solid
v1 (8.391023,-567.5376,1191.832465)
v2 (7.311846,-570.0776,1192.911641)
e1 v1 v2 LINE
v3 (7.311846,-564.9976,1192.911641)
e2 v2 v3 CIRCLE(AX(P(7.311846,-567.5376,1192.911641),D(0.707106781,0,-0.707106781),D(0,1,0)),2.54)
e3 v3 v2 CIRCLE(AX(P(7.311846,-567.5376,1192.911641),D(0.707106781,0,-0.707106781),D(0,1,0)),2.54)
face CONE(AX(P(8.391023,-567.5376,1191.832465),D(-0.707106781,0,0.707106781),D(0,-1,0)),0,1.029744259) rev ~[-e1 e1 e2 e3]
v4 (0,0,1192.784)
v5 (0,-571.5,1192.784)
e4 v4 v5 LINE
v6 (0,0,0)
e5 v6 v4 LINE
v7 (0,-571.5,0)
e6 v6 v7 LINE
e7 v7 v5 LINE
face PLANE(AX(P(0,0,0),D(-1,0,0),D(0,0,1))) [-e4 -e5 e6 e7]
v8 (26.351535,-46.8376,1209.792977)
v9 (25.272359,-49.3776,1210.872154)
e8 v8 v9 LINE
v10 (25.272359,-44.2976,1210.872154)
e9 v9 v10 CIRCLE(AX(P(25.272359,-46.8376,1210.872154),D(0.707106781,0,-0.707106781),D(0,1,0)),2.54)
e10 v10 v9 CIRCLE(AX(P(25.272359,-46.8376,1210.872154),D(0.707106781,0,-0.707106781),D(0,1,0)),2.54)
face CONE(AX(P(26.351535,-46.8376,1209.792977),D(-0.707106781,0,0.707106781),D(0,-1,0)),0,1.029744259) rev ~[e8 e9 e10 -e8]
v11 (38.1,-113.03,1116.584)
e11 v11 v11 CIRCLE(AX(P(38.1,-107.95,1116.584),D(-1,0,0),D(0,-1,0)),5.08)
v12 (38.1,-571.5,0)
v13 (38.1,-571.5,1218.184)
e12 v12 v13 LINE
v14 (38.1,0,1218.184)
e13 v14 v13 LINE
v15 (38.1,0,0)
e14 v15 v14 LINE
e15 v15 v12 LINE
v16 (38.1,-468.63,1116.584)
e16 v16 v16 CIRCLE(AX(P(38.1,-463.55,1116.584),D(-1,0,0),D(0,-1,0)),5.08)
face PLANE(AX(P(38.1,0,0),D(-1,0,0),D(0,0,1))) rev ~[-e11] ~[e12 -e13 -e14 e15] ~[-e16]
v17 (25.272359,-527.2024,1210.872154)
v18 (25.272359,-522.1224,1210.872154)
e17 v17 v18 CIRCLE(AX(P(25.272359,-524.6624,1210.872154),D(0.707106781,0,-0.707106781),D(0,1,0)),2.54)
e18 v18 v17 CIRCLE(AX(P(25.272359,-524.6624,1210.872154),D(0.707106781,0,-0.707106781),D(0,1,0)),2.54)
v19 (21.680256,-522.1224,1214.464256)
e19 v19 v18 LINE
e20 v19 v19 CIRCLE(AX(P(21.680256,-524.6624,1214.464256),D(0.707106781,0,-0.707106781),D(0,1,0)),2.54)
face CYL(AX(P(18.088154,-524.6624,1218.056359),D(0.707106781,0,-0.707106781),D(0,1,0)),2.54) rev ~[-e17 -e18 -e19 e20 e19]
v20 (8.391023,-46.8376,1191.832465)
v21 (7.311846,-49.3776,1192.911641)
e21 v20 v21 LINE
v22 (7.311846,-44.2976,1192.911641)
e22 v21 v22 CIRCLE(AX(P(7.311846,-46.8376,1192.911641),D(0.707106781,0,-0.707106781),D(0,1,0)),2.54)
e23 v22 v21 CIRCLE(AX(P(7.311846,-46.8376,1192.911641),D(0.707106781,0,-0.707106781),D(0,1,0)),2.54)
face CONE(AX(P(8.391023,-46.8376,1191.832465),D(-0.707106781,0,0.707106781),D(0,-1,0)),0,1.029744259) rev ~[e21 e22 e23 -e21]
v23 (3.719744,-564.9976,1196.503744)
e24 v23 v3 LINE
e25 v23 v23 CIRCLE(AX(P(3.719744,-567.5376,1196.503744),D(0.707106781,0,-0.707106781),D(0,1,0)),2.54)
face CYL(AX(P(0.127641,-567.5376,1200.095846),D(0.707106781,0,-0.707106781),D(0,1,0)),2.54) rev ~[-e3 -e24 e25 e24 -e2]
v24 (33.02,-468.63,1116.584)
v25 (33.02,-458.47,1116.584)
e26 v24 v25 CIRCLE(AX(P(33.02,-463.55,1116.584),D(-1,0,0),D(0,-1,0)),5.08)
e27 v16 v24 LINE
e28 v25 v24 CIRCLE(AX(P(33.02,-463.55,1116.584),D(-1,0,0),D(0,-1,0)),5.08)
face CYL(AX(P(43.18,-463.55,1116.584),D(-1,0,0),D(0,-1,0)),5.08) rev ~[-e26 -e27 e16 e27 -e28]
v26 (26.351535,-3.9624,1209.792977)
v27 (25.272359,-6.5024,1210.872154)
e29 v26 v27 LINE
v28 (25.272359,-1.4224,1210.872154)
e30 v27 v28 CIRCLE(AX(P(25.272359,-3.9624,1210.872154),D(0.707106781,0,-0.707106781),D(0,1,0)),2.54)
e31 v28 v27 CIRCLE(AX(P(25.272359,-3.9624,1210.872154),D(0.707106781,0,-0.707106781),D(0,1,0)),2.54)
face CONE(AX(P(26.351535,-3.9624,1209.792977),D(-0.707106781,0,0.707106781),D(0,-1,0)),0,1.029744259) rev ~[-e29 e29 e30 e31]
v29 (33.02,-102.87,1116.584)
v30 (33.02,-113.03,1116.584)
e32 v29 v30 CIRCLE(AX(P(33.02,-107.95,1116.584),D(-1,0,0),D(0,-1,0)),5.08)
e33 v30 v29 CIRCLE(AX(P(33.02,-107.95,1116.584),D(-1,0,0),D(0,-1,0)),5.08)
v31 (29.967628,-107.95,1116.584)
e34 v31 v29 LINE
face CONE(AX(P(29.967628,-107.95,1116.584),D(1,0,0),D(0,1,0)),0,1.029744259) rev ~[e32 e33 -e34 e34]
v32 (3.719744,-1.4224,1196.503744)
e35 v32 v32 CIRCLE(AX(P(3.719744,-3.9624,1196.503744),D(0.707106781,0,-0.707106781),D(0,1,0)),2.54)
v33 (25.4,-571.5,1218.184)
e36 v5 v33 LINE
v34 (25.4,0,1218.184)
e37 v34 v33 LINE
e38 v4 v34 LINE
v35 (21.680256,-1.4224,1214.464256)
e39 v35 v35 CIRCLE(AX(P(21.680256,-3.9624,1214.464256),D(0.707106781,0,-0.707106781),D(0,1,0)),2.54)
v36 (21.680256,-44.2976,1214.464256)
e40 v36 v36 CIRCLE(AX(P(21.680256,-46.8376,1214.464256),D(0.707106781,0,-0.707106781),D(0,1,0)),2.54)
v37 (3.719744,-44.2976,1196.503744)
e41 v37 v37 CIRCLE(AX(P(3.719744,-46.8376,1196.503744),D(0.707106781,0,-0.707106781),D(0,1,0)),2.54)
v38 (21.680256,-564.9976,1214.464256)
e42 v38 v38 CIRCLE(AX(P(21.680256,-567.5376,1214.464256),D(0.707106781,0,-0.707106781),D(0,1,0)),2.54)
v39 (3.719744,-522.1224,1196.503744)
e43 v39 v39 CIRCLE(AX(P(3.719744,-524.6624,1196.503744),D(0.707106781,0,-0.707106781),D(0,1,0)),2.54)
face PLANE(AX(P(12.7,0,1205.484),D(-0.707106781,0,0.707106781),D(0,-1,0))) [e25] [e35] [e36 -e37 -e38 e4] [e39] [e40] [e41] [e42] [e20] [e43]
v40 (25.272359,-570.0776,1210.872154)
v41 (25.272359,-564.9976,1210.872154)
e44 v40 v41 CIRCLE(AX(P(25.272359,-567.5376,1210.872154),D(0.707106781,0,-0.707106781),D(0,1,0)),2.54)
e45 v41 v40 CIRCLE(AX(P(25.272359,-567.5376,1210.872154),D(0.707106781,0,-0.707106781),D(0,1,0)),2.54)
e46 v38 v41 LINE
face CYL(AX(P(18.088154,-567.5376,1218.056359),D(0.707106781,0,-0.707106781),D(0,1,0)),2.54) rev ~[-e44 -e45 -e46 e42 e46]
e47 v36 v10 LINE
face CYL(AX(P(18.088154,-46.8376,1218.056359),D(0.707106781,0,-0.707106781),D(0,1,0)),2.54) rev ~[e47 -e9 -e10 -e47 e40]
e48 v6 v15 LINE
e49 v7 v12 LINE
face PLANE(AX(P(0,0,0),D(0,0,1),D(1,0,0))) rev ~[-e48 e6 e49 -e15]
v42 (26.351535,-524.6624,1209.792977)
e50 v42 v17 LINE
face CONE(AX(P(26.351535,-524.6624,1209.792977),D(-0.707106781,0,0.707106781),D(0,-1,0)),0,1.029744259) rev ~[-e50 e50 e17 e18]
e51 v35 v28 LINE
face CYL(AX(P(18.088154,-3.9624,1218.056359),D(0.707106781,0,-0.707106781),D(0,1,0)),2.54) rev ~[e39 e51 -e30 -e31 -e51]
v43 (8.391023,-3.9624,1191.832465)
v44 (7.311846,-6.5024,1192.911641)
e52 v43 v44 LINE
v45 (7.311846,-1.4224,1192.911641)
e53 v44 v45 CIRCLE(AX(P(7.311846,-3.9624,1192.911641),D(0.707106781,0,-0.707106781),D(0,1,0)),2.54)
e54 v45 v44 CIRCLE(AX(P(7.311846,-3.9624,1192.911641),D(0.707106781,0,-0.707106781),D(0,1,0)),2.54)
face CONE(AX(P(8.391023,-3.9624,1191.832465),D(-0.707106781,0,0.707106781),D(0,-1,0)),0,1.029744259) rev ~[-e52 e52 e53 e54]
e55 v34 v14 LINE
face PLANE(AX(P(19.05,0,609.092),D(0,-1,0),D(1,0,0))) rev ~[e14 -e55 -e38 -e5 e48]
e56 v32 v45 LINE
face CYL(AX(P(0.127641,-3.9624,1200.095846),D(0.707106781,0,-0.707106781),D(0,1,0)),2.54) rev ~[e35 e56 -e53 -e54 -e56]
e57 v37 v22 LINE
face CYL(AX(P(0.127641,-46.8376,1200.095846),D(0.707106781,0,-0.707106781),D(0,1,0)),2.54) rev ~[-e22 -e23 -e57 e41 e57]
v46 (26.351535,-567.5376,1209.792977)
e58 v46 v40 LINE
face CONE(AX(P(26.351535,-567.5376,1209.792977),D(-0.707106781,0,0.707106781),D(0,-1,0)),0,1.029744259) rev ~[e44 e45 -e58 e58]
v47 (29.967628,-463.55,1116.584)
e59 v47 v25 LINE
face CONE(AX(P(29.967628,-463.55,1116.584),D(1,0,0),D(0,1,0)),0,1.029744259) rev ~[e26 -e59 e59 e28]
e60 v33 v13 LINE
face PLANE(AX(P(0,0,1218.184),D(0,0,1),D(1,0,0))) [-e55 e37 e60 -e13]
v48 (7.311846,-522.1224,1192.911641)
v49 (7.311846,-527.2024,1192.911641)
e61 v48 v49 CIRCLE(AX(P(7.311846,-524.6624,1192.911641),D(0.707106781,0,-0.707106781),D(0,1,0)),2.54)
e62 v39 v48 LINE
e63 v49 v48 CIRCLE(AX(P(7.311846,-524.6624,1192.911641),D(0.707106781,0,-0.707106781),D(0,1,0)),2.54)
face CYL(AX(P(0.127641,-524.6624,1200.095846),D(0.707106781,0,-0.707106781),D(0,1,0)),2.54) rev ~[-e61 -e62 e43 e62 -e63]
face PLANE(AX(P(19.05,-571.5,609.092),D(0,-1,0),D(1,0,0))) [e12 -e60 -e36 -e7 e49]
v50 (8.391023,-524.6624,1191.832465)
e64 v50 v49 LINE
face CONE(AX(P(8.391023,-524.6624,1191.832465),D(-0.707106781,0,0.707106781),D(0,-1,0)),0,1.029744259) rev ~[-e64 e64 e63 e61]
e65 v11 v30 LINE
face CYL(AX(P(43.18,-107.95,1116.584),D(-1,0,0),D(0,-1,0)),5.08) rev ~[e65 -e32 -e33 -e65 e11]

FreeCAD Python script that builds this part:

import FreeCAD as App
import Part
import Sketcher
Q = App.Units.Quantity


def edges_at(feature, points):
    """Names of the edges that pass closest to the given points."""
    edges = feature.Shape.Edges
    near = lambda p: min(range(len(edges)), key=lambda i: edges[i].distToShape(Part.Vertex(*p))[0])
    return sorted({f"Edge{near(p) + 1}" for p in points})

doc = App.newDocument("Part")
body = doc.addObject("PartDesign::Body", "Body")

# Sketch on XZ plane
sketch1 = body.newObject("Sketcher::SketchObject", "Sketch")
sketch1.AttachmentSupport = (doc.getObject("XZ_Plane"), [""])
sketch1.MapMode = "FlatFace"
sketch1.addGeometry([
    Part.LineSegment(App.Vector(0, 1218, 0), App.Vector(0, 0, 0)),
    Part.LineSegment(App.Vector(0, 0, 0), App.Vector(38, 0, 0)),
    Part.LineSegment(App.Vector(38, 0, 0), App.Vector(38, 1218, 0)),
    Part.LineSegment(App.Vector(38, 1218, 0), App.Vector(0, 1218, 0)),
], False)
sketch1.addConstraint([
    Sketcher.Constraint("Coincident", 0, 2, 1, 1),
    Sketcher.Constraint("Coincident", 1, 2, 2, 1),
    Sketcher.Constraint("Coincident", 2, 2, 3, 1),
    Sketcher.Constraint("Coincident", 3, 2, 0, 1),
    Sketcher.Constraint("Vertical", 0),
    Sketcher.Constraint("Horizontal", 1),
    Sketcher.Constraint("Vertical", 2),
    Sketcher.Constraint("Horizontal", 3),
    Sketcher.Constraint("Coincident", 0, 2, -1, 1),
    Sketcher.Constraint("DistanceX", 1, 1, 1, 2, Q("1.5 in")),
    Sketcher.Constraint("DistanceY", 0, 2, 0, 1, Q("47.96 in")),
])
pad1 = body.newObject("PartDesign::Pad", "Pad")
pad1.Profile = sketch1
pad1.Length = Q("22.5 in")
doc.recompute()

chamfer = body.newObject("PartDesign::Chamfer", "Chamfer")
chamfer.Base = (pad1, edges_at(pad1, [(0, -285.75, 1218.184)]))
chamfer.ChamferType = "Two distances"
chamfer.Size = Q("1 in")
chamfer.Size2 = Q("1 in")

# Sketch on an angled plane
sketch2 = body.newObject("Sketcher::SketchObject", "Sketch001")
sketch2.Placement = App.Placement(App.Vector(-596.392, 0, 596.392), App.Rotation(App.Vector(0, -1, 0), App.Vector(0.707106781, 0, 0.707106781), App.Vector(-0.707106781, 0, 0.707106781), "ZXY"))
sketch2.addGeometry([
    Part.Circle(App.Vector(4, 874.1, 0), App.Vector(0, 0, 1), 2.5),  # 0
    Part.Circle(App.Vector(4, 848.7, 0), App.Vector(0, 0, 1), 2.5),  # 1
    Part.Circle(App.Vector(46.8, 874.1, 0), App.Vector(0, 0, 1), 2.5),  # 2
    Part.Circle(App.Vector(46.8, 848.7, 0), App.Vector(0, 0, 1), 2.5),  # 3
    Part.Circle(App.Vector(524.7, 874.1, 0), App.Vector(0, 0, 1), 2.5),  # 4
    Part.Circle(App.Vector(524.7, 848.7, 0), App.Vector(0, 0, 1), 2.5),  # 5
    Part.Circle(App.Vector(567.5, 848.7, 0), App.Vector(0, 0, 1), 2.5),  # 6
    Part.Circle(App.Vector(567.5, 874.1, 0), App.Vector(0, 0, 1), 2.5),  # 7
], False)
sketch2.addConstraint([
    Sketcher.Constraint("Equal", 0, 1),
    Sketcher.Constraint("Equal", 1, 2),
    Sketcher.Constraint("Equal", 2, 3),
    Sketcher.Constraint("Equal", 3, 4),
    Sketcher.Constraint("Equal", 4, 5),
    Sketcher.Constraint("Equal", 5, 6),
    Sketcher.Constraint("Equal", 6, 7),
    Sketcher.Constraint("Horizontal", 0, 3, 2, 3),
    Sketcher.Constraint("Horizontal", 1, 3, 3, 3),
    Sketcher.Constraint("Horizontal", 2, 3, 4, 3),
    Sketcher.Constraint("Horizontal", 3, 3, 5, 3),
    Sketcher.Constraint("Horizontal", 5, 3, 6, 3),
    Sketcher.Constraint("Horizontal", 4, 3, 7, 3),
    Sketcher.Constraint("Vertical", 0, 3, 1, 3),
    Sketcher.Constraint("Vertical", 2, 3, 3, 3),
    Sketcher.Constraint("Vertical", 4, 3, 5, 3),
    Sketcher.Constraint("Vertical", 6, 3, 7, 3),
    Sketcher.Constraint("Diameter", 0, Q("0.2 in")),
    Sketcher.Constraint("DistanceY", 1, 3, 0, 3, Q("1 in")),
    Sketcher.Constraint("DistanceX", 0, 3, 4, 3, Q("20.5 in")),
    Sketcher.Constraint("DistanceX", 3, 3, 6, 3, Q("20.5 in")),
    Sketcher.Constraint("DistanceX", -1, 1, 0, 3, Q("0.156 in")),
    Sketcher.Constraint("DistanceX", -1, 1, 2, 3, Q("1.844 in")),
    Sketcher.Constraint("DistanceY", -1, 1, 0, 3, Q("874.086167 mm")),
])
doc.recompute()
hole = body.newObject("PartDesign::Hole", "Hole")
hole.Profile = sketch2
hole.ThreadType = "None"
hole.Diameter = Q("0.2 in")
hole.DepthType = "Dimension"
hole.Depth = Q("0.2 in")
hole.DrillPoint = "Angled"
hole.DrillPointAngle = 118

# Sketch on YZ plane
sketch3 = body.newObject("Sketcher::SketchObject", "Sketch002")
sketch3.AttachmentSupport = (doc.getObject("YZ_Plane"), [""])
sketch3.MapMode = "FlatFace"
sketch3.AttachmentOffset = App.Placement(App.Vector(0, 0, 1.5 * 25.4), App.Rotation())
sketch3.addGeometry([
    Part.Circle(App.Vector(-464, 1117, 0), App.Vector(0, 0, 1), 5),
    Part.Circle(App.Vector(-108, 1117, 0), App.Vector(0, 0, 1), 5),
], False)
sketch3.addConstraint([
    Sketcher.Constraint("Equal", 0, 1),
    Sketcher.Constraint("Horizontal", 0, 3, 1, 3),
    Sketcher.Constraint("Diameter", 0, Q("0.4 in")),
    Sketcher.Constraint("DistanceX", 0, 3, 1, 3, Q("14 in")),
    Sketcher.Constraint("DistanceX", 0, 3, -1, 1, Q("18.25 in")),
    Sketcher.Constraint("DistanceY", -1, 1, 0, 3, Q("43.96 in")),
])
doc.recompute()
hole2 = body.newObject("PartDesign::Hole", "Hole001")
hole2.Profile = sketch3
hole2.ThreadType = "None"
hole2.Diameter = Q("0.4 in")
hole2.DepthType = "Dimension"
hole2.Depth = Q("0.2 in")
hole2.DrillPoint = "Angled"
hole2.DrillPointAngle = 118

doc.recompute()
